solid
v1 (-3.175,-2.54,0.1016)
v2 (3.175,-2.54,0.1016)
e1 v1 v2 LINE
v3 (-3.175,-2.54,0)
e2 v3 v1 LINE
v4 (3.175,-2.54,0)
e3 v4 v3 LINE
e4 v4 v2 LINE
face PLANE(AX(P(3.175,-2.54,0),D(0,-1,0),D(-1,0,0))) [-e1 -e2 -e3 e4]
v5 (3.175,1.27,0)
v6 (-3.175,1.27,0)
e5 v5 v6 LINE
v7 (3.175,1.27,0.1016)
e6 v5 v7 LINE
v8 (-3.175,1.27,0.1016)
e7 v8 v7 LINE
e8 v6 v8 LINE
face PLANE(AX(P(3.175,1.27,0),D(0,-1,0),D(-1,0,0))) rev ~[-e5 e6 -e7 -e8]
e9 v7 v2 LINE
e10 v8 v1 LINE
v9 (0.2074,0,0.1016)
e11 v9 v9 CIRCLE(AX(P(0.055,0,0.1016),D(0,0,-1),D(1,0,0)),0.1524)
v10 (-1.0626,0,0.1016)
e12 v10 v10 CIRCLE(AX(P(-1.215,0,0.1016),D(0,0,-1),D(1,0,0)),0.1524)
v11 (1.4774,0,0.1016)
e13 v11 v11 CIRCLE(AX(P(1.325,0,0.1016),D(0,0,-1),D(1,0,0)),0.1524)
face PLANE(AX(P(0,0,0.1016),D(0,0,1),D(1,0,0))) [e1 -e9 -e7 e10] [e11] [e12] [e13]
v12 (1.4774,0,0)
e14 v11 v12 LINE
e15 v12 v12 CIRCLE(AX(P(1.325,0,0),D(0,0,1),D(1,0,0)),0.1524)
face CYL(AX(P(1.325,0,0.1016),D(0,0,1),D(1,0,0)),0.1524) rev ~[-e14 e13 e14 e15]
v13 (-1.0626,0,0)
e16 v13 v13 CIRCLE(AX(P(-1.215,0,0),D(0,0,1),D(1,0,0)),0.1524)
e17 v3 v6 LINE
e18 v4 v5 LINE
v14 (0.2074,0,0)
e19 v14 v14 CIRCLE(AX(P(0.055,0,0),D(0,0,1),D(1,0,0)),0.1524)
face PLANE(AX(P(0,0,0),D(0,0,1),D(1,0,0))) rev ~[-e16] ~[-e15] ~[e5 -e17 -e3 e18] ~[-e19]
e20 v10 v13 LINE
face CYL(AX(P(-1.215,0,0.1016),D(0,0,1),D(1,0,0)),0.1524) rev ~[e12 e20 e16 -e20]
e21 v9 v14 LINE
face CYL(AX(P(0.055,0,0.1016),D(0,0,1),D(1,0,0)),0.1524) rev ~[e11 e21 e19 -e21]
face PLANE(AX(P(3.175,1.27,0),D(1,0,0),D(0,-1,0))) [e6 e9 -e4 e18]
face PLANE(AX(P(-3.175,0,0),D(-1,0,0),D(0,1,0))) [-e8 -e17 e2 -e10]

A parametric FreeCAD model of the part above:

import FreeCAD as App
import Part
import Sketcher
Q = App.Units.Quantity

doc = App.newDocument("Part")
params = doc.addObject("Spreadsheet::Sheet", "Params")
for row, (alias, value) in enumerate([
    ("sketch1_width", "0.25 in"),
    ("pad1_length", "0.004 in"),
    ("sketch2_diameter", "0.012 in"),
    ("linearpattern_pitch", "0.05 in"),
], start=1):
    params.set(f"A{row}", alias)
    params.set(f"B{row}", "=" + value)
    params.setAlias(f"B{row}", alias)

body = doc.addObject("PartDesign::Body", "Body")

# Sketch on XY plane
sketch1 = body.newObject("Sketcher::SketchObject", "Sketch")
sketch1.AttachmentSupport = (doc.getObject("XY_Plane"), [""])
sketch1.MapMode = "FlatFace"
sketch1.addGeometry([
    Part.LineSegment(App.Vector(3.2, 1.3, 0), App.Vector(-3.2, 1.3, 0)),
    Part.LineSegment(App.Vector(-3.2, 1.3, 0), App.Vector(-3.2, -2.5, 0)),
    Part.LineSegment(App.Vector(-3.2, -2.5, 0), App.Vector(3.2, -2.5, 0)),
    Part.LineSegment(App.Vector(3.2, -2.5, 0), App.Vector(3.2, 1.3, 0)),
], False)
sketch1.addConstraint([
    Sketcher.Constraint("Coincident", 0, 2, 1, 1),
    Sketcher.Constraint("Coincident", 1, 2, 2, 1),
    Sketcher.Constraint("Coincident", 2, 2, 3, 1),
    Sketcher.Constraint("Coincident", 3, 2, 0, 1),
    Sketcher.Constraint("Horizontal", 0),
    Sketcher.Constraint("Vertical", 1),
    Sketcher.Constraint("Horizontal", 2),
    Sketcher.Constraint("Vertical", 3),
    Sketcher.Constraint("DistanceX", 0, 2, 0, 1, Q("0.25 in")),
    Sketcher.Constraint("DistanceY", 1, 2, -1, 1, Q("0.1 in")),
    Sketcher.Constraint("DistanceY", -1, 1, 0, 2, Q("0.05 in")),
    Sketcher.Constraint("DistanceX", 0, 2, -1, 1, Q("0.125 in")),
])
sketch1.setExpression("Constraints[8]", "Params.sketch1_width")
pad1 = body.newObject("PartDesign::Pad", "Pad")
pad1.Profile = sketch1
pad1.setExpression("Length", "Params.pad1_length")

# Sketch on XY plane
sketch2 = body.newObject("Sketcher::SketchObject", "Sketch001")
sketch2.AttachmentSupport = (doc.getObject("XY_Plane"), [""])
sketch2.MapMode = "FlatFace"
sketch2.AttachmentOffset = App.Placement(App.Vector(0, 0, 0.004 * 25.4), App.Rotation())
sketch2.addGeometry(Part.Circle(App.Vector(1.32, 0, 0), App.Vector(0, 0, 1), 0.15), False)
sketch2.addConstraint([
    Sketcher.Constraint("PointOnObject", 0, 3, -1),
    Sketcher.Constraint("Diameter", 0, Q("0.012 in")),
    Sketcher.Constraint("DistanceX", -1, 1, 0, 3, 1.325),
])
sketch2.setExpression("Constraints[1]", "Params.sketch2_diameter")
pocket1 = body.newObject("PartDesign::Pocket", "Pocket")
pocket1.Profile = sketch2
pocket1.Type = "ThroughAll"
doc.recompute()

linearpattern = body.newObject("PartDesign::LinearPattern", "LinearPattern")
linearpattern.Originals = [pocket1]
linearpattern.Direction = (doc.getObject("X_Axis"), [""])
linearpattern.Mode = "offset"
linearpattern.setExpression("Offset", "Params.linearpattern_pitch")
linearpattern.Occurrences = 3
linearpattern.Reversed = True
body.Tip = linearpattern

doc.recompute()
